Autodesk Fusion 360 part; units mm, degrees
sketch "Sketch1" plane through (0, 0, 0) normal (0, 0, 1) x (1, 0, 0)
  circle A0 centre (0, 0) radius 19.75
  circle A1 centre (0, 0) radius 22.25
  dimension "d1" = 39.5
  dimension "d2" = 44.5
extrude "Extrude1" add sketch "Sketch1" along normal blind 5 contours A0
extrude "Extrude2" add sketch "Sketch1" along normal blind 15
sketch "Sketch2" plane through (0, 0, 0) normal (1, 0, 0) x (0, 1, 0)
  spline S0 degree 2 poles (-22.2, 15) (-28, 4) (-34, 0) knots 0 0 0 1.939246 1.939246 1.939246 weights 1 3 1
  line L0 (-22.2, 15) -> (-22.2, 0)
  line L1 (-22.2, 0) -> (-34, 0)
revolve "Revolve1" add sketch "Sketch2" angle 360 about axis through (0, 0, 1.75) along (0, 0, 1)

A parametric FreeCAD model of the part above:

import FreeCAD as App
import Part
import Sketcher
from FreeCAD import Vector
Q = App.Units.Quantity

doc = App.newDocument("Part")
body = doc.addObject("PartDesign::Body", "Body")

# Sketch on XY plane
sketch1 = doc.addObject("Sketcher::SketchObject", "Sketch")
body.addObject(sketch1)
sketch1.AttachmentSupport = (doc.XY_Plane, [""])
sketch1.MapMode = "FlatFace"
sketch1.addGeometry(Part.Circle(Vector(0, 0, 0), Vector(0, 0, 1), 20), False)
sketch1.addConstraint([
    Sketcher.Constraint("Coincident", 0, 3, -1, 1),
    Sketcher.Constraint("Diameter", 0, Q("39.5 mm")),
])
pad1 = doc.addObject("PartDesign::Pad", "Pad")
body.addObject(pad1)
pad1.Profile = sketch1
pad1.Length = 5

# Sketch on XY plane
sketch2 = doc.addObject("Sketcher::SketchObject", "Sketch001")
body.addObject(sketch2)
sketch2.AttachmentSupport = (doc.XY_Plane, [""])
sketch2.MapMode = "FlatFace"
sketch2.addGeometry([
    Part.Circle(Vector(0, 0, 0), Vector(0, 0, 1), 22),
    Part.Circle(Vector(0, 0, 0), Vector(0, 0, 1), 20),
], False)
sketch2.addConstraint([
    Sketcher.Constraint("Coincident", 0, 3, -1, 1),
    Sketcher.Constraint("Coincident", 1, 3, -1, 1),
    Sketcher.Constraint("Diameter", 0, Q("44.5 mm")),
    Sketcher.Constraint("Diameter", 1, Q("39.5 mm")),
])
pad2 = doc.addObject("PartDesign::Pad", "Pad001")
body.addObject(pad2)
pad2.Profile = sketch2
pad2.Length = 15

# Sketch on YZ plane
sketch3 = doc.addObject("Sketcher::SketchObject", "Sketch002")
body.addObject(sketch3)
sketch3.AttachmentSupport = (doc.YZ_Plane, [""])
sketch3.MapMode = "FlatFace"
sketch3.addGeometry([
    Part.LineSegment(Vector(-22.2, 0, 0), Vector(-22.2, 15, 0)),
    Part.BSplineCurve([Vector(-22.2, 15, 0), Vector(-28, 4, 0), Vector(-34, 0, 0)], [3, 3], [0, 1.939246], False, 2, [1, 3, 1], False),
    Part.LineSegment(Vector(-34, 0, 0), Vector(-22.2, 0, 0)),
], False)
sketch3.addConstraint([
    Sketcher.Constraint("Block", 1),
    Sketcher.Constraint("Coincident", 0, 2, 1, 1),
    Sketcher.Constraint("Coincident", 1, 2, 2, 1),
    Sketcher.Constraint("Coincident", 2, 2, 0, 1),
    Sketcher.Constraint("Vertical", 0),
    Sketcher.Constraint("Horizontal", 2),
])
revolution = doc.addObject("PartDesign::Revolution", "Revolution")
body.addObject(revolution)
revolution.Profile = sketch3
revolution.ReferenceAxis = (sketch3, ["V_Axis"])
revolution.Angle = 360

doc.recompute()
